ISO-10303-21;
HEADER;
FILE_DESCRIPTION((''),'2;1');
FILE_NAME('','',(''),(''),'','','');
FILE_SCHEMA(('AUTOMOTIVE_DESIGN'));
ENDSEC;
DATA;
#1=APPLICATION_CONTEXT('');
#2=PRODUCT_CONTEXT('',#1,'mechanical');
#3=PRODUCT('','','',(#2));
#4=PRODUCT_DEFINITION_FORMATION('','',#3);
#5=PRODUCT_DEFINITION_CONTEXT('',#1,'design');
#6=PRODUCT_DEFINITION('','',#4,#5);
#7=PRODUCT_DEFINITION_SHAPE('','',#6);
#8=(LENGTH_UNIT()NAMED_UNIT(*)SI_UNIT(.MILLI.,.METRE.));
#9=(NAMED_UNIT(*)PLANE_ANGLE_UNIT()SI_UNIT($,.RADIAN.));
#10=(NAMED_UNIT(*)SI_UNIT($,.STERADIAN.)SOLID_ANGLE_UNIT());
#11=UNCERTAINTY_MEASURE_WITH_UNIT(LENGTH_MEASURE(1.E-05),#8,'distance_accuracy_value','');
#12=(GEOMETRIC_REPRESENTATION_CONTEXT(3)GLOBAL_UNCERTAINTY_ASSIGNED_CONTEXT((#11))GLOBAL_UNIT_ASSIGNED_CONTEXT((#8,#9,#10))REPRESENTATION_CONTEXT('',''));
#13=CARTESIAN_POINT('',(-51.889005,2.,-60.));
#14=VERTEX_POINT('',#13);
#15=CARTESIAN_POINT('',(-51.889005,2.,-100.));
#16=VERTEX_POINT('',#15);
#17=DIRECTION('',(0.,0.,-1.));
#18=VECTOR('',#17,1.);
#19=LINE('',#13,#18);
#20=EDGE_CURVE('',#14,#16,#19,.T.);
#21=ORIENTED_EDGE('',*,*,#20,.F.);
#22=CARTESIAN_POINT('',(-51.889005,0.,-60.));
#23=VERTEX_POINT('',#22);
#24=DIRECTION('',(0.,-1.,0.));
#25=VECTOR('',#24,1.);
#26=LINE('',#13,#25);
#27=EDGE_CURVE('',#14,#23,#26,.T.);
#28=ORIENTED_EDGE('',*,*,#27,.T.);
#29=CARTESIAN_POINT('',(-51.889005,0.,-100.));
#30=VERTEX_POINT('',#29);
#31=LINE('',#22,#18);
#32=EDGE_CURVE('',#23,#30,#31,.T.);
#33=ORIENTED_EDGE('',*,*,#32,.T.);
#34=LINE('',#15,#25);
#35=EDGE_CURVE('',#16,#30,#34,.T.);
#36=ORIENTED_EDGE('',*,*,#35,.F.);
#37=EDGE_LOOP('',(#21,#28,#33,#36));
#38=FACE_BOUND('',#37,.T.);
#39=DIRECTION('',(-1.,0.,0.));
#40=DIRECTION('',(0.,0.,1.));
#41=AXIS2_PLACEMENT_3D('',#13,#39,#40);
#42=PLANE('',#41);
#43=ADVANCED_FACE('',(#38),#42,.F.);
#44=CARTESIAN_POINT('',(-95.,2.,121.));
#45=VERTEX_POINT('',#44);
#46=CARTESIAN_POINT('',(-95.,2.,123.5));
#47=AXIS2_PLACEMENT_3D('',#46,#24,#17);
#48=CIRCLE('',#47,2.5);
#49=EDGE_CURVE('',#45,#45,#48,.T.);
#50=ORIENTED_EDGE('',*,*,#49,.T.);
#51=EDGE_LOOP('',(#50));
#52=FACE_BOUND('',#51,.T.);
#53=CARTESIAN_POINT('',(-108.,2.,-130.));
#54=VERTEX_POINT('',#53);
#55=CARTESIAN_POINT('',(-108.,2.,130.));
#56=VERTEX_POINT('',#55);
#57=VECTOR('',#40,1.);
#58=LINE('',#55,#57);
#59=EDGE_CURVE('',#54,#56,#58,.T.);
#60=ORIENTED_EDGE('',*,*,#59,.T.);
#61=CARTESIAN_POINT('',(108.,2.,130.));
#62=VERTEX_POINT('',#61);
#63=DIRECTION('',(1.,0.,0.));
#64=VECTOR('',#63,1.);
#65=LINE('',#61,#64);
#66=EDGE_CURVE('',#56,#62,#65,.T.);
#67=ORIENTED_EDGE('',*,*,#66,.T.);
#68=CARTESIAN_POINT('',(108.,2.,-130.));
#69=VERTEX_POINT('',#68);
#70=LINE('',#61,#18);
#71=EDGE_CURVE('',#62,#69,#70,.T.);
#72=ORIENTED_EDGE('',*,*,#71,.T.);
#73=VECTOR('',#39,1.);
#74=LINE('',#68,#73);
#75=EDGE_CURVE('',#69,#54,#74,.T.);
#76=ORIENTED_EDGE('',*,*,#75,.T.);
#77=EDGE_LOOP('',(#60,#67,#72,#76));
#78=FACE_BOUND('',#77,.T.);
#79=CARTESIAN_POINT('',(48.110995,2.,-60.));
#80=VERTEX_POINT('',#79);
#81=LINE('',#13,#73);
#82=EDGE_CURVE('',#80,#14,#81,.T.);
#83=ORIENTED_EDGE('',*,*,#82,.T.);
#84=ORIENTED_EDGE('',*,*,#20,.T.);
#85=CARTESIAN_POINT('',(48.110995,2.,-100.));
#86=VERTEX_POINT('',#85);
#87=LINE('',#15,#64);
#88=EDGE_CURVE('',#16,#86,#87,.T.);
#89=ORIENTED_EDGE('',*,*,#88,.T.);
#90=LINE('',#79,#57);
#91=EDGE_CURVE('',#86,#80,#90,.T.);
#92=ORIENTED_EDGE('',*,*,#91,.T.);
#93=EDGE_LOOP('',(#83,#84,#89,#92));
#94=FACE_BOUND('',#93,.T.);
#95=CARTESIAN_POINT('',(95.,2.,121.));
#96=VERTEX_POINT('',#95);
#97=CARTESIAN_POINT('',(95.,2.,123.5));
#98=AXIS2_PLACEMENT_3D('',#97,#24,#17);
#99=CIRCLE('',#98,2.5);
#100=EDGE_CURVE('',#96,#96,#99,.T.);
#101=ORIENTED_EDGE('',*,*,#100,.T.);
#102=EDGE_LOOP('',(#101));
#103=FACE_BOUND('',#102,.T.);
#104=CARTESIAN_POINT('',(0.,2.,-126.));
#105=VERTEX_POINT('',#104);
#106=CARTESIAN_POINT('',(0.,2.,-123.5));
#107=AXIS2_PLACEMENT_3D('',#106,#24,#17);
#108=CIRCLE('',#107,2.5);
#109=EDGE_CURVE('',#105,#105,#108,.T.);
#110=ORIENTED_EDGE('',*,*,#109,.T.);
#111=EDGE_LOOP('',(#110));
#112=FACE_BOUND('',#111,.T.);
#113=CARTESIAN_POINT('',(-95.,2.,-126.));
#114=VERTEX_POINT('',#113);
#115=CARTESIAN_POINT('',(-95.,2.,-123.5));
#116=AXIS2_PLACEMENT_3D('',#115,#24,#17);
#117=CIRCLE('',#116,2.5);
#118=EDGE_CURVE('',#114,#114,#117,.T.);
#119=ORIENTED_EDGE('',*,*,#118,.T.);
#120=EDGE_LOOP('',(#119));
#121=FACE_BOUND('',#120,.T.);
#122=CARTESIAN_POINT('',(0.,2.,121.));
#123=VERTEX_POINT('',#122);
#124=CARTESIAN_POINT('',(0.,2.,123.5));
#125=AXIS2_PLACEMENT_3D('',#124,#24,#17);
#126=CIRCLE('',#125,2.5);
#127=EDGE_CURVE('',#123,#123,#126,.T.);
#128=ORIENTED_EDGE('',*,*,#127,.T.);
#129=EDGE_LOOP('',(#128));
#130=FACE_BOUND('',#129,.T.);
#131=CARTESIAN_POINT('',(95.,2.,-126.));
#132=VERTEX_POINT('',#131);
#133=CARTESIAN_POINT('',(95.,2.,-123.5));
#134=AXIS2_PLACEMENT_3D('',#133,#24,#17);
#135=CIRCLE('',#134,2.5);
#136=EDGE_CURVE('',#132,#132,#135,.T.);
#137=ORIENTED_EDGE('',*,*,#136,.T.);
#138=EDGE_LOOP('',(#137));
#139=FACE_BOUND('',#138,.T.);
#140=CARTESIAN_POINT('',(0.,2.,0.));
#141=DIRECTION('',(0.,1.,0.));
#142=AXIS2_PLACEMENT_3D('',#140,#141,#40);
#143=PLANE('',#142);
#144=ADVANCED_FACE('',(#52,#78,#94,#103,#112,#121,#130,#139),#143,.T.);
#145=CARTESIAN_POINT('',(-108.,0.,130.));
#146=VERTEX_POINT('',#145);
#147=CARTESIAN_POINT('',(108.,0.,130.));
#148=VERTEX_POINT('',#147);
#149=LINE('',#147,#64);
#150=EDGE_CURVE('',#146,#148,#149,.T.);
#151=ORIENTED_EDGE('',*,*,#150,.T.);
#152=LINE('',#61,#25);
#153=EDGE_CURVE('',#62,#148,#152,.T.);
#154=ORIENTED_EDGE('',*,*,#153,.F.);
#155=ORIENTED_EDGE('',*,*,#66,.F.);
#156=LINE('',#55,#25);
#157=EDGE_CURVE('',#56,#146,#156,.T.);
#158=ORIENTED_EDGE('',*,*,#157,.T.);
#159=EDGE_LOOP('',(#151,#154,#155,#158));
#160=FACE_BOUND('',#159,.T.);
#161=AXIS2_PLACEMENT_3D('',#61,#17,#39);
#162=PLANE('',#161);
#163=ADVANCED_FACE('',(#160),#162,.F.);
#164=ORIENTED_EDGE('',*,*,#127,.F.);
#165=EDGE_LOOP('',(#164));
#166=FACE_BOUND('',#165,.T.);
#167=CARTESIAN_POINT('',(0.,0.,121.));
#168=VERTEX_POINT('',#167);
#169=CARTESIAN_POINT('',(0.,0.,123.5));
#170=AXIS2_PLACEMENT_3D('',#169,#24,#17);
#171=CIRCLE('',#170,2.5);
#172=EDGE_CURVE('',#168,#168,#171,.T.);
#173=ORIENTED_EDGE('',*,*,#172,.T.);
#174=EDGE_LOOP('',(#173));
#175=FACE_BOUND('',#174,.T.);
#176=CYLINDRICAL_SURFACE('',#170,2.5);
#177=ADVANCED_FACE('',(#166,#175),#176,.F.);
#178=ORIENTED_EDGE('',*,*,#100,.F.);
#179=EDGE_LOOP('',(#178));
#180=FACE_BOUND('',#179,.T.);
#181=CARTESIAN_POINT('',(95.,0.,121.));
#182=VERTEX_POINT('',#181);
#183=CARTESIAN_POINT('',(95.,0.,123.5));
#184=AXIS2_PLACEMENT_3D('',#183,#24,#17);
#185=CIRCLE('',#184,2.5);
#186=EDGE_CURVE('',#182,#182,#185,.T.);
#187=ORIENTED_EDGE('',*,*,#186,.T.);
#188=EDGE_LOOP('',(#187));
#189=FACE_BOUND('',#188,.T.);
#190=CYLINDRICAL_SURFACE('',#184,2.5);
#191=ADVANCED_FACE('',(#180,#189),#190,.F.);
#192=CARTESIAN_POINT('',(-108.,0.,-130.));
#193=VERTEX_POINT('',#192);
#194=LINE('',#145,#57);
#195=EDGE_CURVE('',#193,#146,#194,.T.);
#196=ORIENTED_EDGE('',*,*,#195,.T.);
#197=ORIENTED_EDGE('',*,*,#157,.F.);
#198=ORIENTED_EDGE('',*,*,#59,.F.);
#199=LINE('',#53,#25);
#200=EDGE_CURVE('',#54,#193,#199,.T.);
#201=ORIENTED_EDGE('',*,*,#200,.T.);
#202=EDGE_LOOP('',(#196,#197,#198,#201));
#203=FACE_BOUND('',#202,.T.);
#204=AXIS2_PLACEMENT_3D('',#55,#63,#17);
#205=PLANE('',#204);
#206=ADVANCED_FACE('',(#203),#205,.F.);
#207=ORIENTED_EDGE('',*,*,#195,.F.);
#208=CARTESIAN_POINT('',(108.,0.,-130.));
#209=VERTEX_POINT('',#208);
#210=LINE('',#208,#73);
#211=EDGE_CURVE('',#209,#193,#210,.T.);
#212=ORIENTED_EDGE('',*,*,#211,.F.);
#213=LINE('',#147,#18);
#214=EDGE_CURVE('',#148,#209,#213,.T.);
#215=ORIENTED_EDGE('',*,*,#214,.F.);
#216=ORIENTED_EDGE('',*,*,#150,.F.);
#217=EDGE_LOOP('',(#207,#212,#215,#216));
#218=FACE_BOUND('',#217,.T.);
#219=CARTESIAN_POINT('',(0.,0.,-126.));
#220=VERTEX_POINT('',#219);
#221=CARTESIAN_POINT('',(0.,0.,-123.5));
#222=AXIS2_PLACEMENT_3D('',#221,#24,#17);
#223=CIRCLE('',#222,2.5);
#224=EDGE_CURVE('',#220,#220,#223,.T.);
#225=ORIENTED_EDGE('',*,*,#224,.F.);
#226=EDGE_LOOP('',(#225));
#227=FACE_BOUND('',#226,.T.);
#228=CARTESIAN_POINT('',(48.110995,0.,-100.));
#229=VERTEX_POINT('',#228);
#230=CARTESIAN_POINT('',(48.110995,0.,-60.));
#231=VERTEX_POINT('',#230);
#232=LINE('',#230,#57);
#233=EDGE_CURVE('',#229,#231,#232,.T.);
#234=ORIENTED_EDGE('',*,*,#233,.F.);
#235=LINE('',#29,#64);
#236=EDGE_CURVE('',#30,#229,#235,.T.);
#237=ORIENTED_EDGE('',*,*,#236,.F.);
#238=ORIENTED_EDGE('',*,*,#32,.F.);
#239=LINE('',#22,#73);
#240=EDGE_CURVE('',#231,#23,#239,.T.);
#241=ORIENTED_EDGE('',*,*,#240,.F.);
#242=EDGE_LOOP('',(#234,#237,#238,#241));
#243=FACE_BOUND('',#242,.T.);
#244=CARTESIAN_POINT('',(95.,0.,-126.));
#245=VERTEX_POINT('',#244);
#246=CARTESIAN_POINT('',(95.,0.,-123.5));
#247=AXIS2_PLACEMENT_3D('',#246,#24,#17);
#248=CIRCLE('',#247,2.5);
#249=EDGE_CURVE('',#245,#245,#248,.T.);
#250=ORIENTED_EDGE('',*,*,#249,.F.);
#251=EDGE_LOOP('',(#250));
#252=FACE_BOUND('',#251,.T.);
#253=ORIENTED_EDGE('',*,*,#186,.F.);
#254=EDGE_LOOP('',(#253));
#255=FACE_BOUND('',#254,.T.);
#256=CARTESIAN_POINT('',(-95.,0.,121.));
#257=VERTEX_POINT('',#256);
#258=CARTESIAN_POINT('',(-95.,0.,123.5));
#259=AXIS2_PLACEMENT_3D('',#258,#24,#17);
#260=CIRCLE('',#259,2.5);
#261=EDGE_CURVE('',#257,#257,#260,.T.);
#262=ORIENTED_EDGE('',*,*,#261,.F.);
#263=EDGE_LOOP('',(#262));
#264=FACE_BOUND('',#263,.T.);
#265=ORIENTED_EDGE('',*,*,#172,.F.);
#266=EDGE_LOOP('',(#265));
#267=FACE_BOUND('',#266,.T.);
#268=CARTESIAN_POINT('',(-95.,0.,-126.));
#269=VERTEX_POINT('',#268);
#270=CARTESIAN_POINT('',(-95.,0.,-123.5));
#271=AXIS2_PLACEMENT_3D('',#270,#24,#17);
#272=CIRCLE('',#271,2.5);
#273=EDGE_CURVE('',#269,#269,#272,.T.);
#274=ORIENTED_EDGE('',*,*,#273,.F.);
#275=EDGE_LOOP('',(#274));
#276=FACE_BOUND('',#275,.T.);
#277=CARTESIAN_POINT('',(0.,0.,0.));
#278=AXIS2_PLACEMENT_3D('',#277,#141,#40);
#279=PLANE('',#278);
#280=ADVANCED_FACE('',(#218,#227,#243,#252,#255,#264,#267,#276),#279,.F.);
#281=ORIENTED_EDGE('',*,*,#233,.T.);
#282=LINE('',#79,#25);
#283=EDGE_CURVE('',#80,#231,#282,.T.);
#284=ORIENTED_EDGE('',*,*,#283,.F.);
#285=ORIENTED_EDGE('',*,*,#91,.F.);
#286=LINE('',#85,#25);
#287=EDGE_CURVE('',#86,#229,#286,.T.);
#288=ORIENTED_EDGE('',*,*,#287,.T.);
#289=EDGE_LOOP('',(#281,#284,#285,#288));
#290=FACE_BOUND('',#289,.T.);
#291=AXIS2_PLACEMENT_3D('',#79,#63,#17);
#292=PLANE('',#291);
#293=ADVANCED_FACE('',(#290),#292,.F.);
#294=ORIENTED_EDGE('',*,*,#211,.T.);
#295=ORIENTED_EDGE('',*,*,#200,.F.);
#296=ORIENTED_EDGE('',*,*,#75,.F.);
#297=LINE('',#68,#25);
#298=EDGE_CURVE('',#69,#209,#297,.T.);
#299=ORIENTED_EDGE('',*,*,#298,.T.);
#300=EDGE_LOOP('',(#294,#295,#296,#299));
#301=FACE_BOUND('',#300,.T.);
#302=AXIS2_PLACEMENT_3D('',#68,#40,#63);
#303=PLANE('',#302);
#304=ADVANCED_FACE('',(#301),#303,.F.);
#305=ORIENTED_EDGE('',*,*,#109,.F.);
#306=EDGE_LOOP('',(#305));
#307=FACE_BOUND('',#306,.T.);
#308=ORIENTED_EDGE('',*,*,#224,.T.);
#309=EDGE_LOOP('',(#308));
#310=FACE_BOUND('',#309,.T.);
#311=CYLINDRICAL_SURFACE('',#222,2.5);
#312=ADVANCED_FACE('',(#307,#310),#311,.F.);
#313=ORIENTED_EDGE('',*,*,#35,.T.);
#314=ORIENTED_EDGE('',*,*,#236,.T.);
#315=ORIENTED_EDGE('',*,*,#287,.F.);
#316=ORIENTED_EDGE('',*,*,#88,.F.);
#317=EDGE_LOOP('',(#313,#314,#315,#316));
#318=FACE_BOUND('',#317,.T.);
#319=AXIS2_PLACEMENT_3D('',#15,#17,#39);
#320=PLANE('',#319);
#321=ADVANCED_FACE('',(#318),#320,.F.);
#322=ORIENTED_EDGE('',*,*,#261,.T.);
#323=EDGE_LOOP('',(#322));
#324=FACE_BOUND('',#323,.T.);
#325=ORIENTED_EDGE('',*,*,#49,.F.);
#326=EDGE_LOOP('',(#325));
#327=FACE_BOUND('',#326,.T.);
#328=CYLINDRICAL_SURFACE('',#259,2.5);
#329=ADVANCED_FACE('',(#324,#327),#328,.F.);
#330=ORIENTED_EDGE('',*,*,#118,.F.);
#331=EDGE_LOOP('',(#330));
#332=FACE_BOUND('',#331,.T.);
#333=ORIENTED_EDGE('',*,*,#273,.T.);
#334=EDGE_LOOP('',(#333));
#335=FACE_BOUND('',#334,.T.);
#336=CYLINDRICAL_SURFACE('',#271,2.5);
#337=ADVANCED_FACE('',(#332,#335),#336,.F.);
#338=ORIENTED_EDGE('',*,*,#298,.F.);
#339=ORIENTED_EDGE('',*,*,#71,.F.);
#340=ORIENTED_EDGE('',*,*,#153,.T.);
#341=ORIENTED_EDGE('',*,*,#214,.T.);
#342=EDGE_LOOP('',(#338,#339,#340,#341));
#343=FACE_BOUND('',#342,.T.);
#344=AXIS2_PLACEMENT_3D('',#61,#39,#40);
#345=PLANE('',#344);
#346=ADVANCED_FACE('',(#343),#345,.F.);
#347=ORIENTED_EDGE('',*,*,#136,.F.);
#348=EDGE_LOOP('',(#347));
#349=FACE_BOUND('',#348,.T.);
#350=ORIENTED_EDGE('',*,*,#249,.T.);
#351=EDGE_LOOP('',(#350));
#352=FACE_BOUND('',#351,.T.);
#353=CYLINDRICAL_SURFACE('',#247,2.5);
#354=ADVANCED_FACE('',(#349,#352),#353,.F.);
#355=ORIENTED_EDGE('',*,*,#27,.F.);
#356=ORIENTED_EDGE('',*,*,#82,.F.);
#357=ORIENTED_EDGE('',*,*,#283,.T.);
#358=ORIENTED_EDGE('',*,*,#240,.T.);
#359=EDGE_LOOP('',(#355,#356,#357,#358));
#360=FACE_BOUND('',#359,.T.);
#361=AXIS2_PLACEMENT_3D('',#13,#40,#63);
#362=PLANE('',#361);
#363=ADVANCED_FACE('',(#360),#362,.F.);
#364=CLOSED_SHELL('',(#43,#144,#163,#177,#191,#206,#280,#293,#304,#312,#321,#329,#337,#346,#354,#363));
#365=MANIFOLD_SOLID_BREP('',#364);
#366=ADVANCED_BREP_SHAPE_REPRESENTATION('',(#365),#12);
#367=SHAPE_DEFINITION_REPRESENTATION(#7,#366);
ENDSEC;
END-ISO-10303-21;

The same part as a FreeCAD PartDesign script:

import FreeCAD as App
import Part
import Sketcher


def add_polygon(sketch, points):
    """Adds a closed chain of lines whose ends are joined by coincident constraints."""
    first, n = sketch.GeometryCount, len(points)
    for a, b in zip(points, points[1:] + points[:1]):
        sketch.addGeometry(Part.LineSegment(App.Vector(*a, 0), App.Vector(*b, 0)), False)
    for i in range(n):
        sketch.addConstraint(Sketcher.Constraint("Coincident", first + i, 2, first + (i + 1) % n, 1))

doc = App.newDocument("Part")
body = doc.addObject("PartDesign::Body", "Body")

# Sketch on XZ plane
sketch1 = body.newObject("Sketcher::SketchObject", "Sketch")
sketch1.AttachmentSupport = (doc.getObject("XZ_Plane"), [""])
sketch1.MapMode = "FlatFace"
add_polygon(sketch1, [(-108, -130), (-108, 130), (108, 130), (108, -130)])  # lines 0-3
sketch1.addConstraint([
    Sketcher.Constraint("Vertical", 0),
    Sketcher.Constraint("Horizontal", 1),
    Sketcher.Constraint("Vertical", 2),
    Sketcher.Constraint("Horizontal", 3),
    Sketcher.Constraint("Symmetric", 0, 2, 2, 2, -1, 1),
    Sketcher.Constraint("DistanceX", 1, 1, 1, 2, 216.0),
    Sketcher.Constraint("DistanceY", 0, 1, 0, 2, 260.0),
])
pad1 = body.newObject("PartDesign::Pad", "Pad")
pad1.Profile = sketch1
pad1.Length = 2
pad1.Reversed = True

# Sketch on XZ plane
sketch2 = body.newObject("Sketcher::SketchObject", "Sketch001")
sketch2.AttachmentSupport = (doc.getObject("XZ_Plane"), [""])
sketch2.MapMode = "FlatFace"
add_polygon(sketch2, [(-51.889005, -60), (-51.889005, -100), (48.110995, -100), (48.110995, -60)])  # lines 0-3
sketch2.addConstraint([
    Sketcher.Constraint("Vertical", 0),
    Sketcher.Constraint("Horizontal", 1),
    Sketcher.Constraint("Vertical", 2),
    Sketcher.Constraint("Horizontal", 3),
    Sketcher.Constraint("DistanceX", 1, 1, 1, 2, 100.0),
    Sketcher.Constraint("DistanceY", 0, 2, 0, 1, 40.0),
    Sketcher.Constraint("DistanceY", 0, 2, -1, 1, 100.0),
    Sketcher.Constraint("DistanceX", 0, 2, -1, 1, 51.889005),
])
pocket1 = body.newObject("PartDesign::Pocket", "Pocket")
pocket1.Profile = sketch2
pocket1.Length = 2

# Sketch on XZ plane
sketch3 = body.newObject("Sketcher::SketchObject", "Sketch002")
sketch3.AttachmentSupport = (doc.getObject("XZ_Plane"), [""])
sketch3.MapMode = "FlatFace"
sketch3.addGeometry([
    Part.Circle(App.Vector(95, -123.5, 0), App.Vector(0, 0, 1), 2.5),  # 0
    Part.Circle(App.Vector(0, -123.5, 0), App.Vector(0, 0, 1), 2.5),  # 1
    Part.Circle(App.Vector(-95, -123.5, 0), App.Vector(0, 0, 1), 2.5),  # 2
    Part.Circle(App.Vector(95, 123.5, 0), App.Vector(0, 0, 1), 2.5),  # 3
    Part.Circle(App.Vector(0, 123.5, 0), App.Vector(0, 0, 1), 2.5),  # 4
    Part.Circle(App.Vector(-95, 123.5, 0), App.Vector(0, 0, 1), 2.5),  # 5
], False)
sketch3.addConstraint([
    Sketcher.Constraint("Equal", 0, 1),
    Sketcher.Constraint("Equal", 1, 2),
    Sketcher.Constraint("Equal", 2, 3),
    Sketcher.Constraint("Equal", 3, 4),
    Sketcher.Constraint("Equal", 4, 5),
    Sketcher.Constraint("Symmetric", 2, 3, 3, 3, -1, 1),
    Sketcher.Constraint("Symmetric", 1, 3, 4, 3, -1, 1),
    Sketcher.Constraint("Symmetric", 0, 3, 5, 3, -1, 1),
    Sketcher.Constraint("Symmetric", 0, 3, 2, 3, -2),
    Sketcher.Constraint("PointOnObject", 1, 3, -2),
    Sketcher.Constraint("Horizontal", 0, 3, 1, 3),
    Sketcher.Constraint("Diameter", 0, 5.0),
    Sketcher.Constraint("DistanceX", -1, 1, 0, 3, 95.0),
    Sketcher.Constraint("DistanceY", 0, 3, 3, 3, 247.0),
])
doc.recompute()
hole = body.newObject("PartDesign::Hole", "Hole")
hole.Profile = sketch3
hole.ThreadType = "None"
hole.Diameter = 5
hole.DepthType = "ThroughAll"

doc.recompute()
